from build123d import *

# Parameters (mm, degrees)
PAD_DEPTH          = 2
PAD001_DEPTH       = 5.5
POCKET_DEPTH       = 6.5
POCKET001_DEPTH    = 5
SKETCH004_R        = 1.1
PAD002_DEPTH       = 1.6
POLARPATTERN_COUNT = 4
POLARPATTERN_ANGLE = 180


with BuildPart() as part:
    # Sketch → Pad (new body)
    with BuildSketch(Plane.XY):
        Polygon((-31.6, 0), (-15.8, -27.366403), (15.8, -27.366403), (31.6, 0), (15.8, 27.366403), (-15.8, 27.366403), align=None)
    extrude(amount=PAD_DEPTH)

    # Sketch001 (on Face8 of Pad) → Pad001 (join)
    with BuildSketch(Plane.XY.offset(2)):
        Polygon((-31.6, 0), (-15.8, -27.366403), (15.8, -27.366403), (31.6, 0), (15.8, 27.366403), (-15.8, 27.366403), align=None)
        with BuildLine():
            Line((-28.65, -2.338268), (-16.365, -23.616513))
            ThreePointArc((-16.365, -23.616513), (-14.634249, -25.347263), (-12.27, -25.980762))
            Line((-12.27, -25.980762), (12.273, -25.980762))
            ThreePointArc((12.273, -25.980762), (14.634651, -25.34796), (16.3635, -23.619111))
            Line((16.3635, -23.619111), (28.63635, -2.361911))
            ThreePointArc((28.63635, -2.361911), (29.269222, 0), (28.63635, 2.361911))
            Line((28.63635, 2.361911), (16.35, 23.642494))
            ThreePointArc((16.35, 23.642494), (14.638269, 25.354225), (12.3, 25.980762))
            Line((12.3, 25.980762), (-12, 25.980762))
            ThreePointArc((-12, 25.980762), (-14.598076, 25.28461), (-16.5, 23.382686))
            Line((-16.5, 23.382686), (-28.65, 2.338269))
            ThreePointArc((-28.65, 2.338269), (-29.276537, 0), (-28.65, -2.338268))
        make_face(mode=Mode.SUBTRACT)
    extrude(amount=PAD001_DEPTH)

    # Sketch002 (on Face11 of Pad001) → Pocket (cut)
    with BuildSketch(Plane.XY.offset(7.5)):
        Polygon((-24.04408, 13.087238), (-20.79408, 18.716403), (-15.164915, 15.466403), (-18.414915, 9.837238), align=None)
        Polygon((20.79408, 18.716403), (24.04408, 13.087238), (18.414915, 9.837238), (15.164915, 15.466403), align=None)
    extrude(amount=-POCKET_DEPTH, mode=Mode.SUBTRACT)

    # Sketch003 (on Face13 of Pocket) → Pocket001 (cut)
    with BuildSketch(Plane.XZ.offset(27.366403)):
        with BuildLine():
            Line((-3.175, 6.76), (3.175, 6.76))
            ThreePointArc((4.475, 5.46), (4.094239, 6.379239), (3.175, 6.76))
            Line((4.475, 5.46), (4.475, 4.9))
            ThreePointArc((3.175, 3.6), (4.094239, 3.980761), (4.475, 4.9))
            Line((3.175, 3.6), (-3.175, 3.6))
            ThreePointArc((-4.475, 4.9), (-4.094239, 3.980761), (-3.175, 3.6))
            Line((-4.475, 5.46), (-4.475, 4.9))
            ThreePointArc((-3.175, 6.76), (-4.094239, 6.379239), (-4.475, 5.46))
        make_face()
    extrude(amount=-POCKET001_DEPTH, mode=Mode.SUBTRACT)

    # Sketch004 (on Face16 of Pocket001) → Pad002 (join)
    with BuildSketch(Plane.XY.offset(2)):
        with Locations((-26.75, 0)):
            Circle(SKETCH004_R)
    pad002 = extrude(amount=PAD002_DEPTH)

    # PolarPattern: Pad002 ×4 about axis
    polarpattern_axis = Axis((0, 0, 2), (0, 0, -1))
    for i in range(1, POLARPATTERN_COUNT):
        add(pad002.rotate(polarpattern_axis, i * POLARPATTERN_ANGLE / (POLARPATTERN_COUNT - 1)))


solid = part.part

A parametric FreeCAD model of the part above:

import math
import FreeCAD as App
import Part
import Sketcher
from FreeCAD import Vector
Q = App.Units.Quantity


def add_polygon(sketch, points):
    """Adds a closed chain of lines whose ends are joined by coincident constraints."""
    first, n = sketch.GeometryCount, len(points)
    for a, b in zip(points, points[1:] + points[:1]):
        sketch.addGeometry(Part.LineSegment(App.Vector(*a, 0), App.Vector(*b, 0)), False)
    for i in range(n):
        sketch.addConstraint(Sketcher.Constraint("Coincident", first + i, 2, first + (i + 1) % n, 1))

doc = App.newDocument("Part")
body = doc.addObject("PartDesign::Body", "Body")

# Sketch on XY plane
sketch1 = body.newObject("Sketcher::SketchObject", "Sketch")
sketch1.AttachmentSupport = (doc.getObject("XY_Plane"), [""])
sketch1.MapMode = "FlatFace"
add_polygon(sketch1, [(-32, 0), (-16, -27), (16, -27), (32, 0), (16, 27), (-16, 27)])  # lines 0-5
sketch1.addConstraint(Sketcher.Constraint("Horizontal", 1))
sketch1.addConstraint(Sketcher.Constraint("Horizontal", 4))
sketch1.addConstraint(Sketcher.Constraint("Symmetric", 0, 2, 3, 2, -1, 1))
sketch1.addConstraint(Sketcher.Constraint("Symmetric", 2, 2, 5, 2, -1, 1))
sketch1.addConstraint(Sketcher.Constraint("PointOnObject", 2, 2, -1))
sketch1.addConstraint(Sketcher.Constraint("Parallel", 2, 5))
sketch1.addConstraint(Sketcher.Constraint("Vertical", 1, 2, 3, 2))
sketch1.addConstraint(Sketcher.Constraint("Angle", 0, Q("-60 deg")))
sketch1.addConstraint(Sketcher.Constraint("DistanceX", 1, 1, 1, 2, Q("31.6 mm")))
sketch1.addConstraint(Sketcher.Constraint("Distance", 0, Q("31.6 mm")))
pad1 = body.newObject("PartDesign::Pad", "Pad")
pad1.Profile = sketch1
pad1.Length = 2

# Sketch on XY plane
sketch2 = body.newObject("Sketcher::SketchObject", "Sketch001")
sketch2.AttachmentSupport = (doc.getObject("XY_Plane"), [""])
sketch2.MapMode = "FlatFace"
sketch2.AttachmentOffset = App.Placement(Vector(0, 0, 2), App.Rotation())
add_polygon(sketch2, [(-31.6, 0), (-15.8, -27.4), (15.8, -27.4), (31.6, 0), (15.8, 27.4), (-15.8, 27.4)])  # lines 0-5
sketch2.addGeometry(Part.LineSegment(Vector(-16.4, -23.6, 0), Vector(-28.6, -2.3, 0)), False)  # 6
sketch2.addGeometry(Part.ArcOfCircle(Part.Circle(Vector(-24.6, 0, 0), Vector(0, 0, 1), 4.7), math.radians(150), math.radians(210)), False)  # 7
sketch2.addGeometry(Part.LineSegment(Vector(-28.6, 2.3, 0), Vector(-16.5, 23.4, 0)), False)  # 8
sketch2.addGeometry(Part.ArcOfCircle(Part.Circle(Vector(-12, 20.8, 0), Vector(0, 0, 1), 5.2), math.radians(90), math.radians(150)), False)  # 9
sketch2.addGeometry(Part.LineSegment(Vector(-12, 26, 0), Vector(12.3, 26, 0)), False)  # 10
sketch2.addGeometry(Part.ArcOfCircle(Part.Circle(Vector(12.3, 21.3, 0), Vector(0, 0, 1), 4.7), math.radians(30), math.radians(90)), False)  # 11
sketch2.addGeometry(Part.LineSegment(Vector(16.4, 23.6, 0), Vector(28.6, 2.4, 0)), False)  # 12
sketch2.addGeometry(Part.ArcOfCircle(Part.Circle(Vector(24.5, 0, 0), Vector(0, 0, 1), 4.7), math.radians(-30), math.radians(30)), False)  # 13
sketch2.addGeometry(Part.LineSegment(Vector(28.6, -2.4, 0), Vector(16.4, -23.6, 0)), False)  # 14
sketch2.addGeometry(Part.ArcOfCircle(Part.Circle(Vector(12.3, -21.3, 0), Vector(0, 0, 1), 4.7), math.radians(-90), math.radians(-30)), False)  # 15
sketch2.addGeometry(Part.LineSegment(Vector(12.3, -26, 0), Vector(-12.3, -26, 0)), False)  # 16
sketch2.addGeometry(Part.ArcOfCircle(Part.Circle(Vector(-12.3, -21.3, 0), Vector(0, 0, 1), 4.7), math.radians(-150), math.radians(-90)), False)  # 17
sketch2.addConstraint(Sketcher.Constraint("Tangent", 6, 2, 7, 2))
sketch2.addConstraint(Sketcher.Constraint("Tangent", 7, 1, 8, 1))
sketch2.addConstraint(Sketcher.Constraint("Tangent", 8, 2, 9, 2))
sketch2.addConstraint(Sketcher.Constraint("Tangent", 9, 1, 10, 1))
sketch2.addConstraint(Sketcher.Constraint("Tangent", 10, 2, 11, 2))
sketch2.addConstraint(Sketcher.Constraint("Tangent", 11, 1, 12, 1))
sketch2.addConstraint(Sketcher.Constraint("Tangent", 12, 2, 13, 2))
sketch2.addConstraint(Sketcher.Constraint("Tangent", 13, 1, 14, 1))
sketch2.addConstraint(Sketcher.Constraint("Tangent", 14, 2, 15, 2))
sketch2.addConstraint(Sketcher.Constraint("Tangent", 15, 1, 16, 1))
sketch2.addConstraint(Sketcher.Constraint("Tangent", 16, 2, 17, 2))
sketch2.addConstraint(Sketcher.Constraint("Tangent", 17, 1, 6, 1))
sketch2.addConstraint(Sketcher.Constraint("Horizontal", 1))
sketch2.addConstraint(Sketcher.Constraint("Horizontal", 4))
sketch2.addConstraint(Sketcher.Constraint("Horizontal", 10))
sketch2.addConstraint(Sketcher.Constraint("Horizontal", 16))
sketch2.addConstraint(Sketcher.Constraint("Symmetric", 0, 2, 3, 2, -1, 1))
sketch2.addConstraint(Sketcher.Constraint("Symmetric", 2, 2, 5, 2, -1, 1))
sketch2.addConstraint(Sketcher.Constraint("Symmetric", 6, 2, 7, 1, -1))
sketch2.addConstraint(Sketcher.Constraint("Symmetric", 12, 2, 13, 1, -1))
sketch2.addConstraint(Sketcher.Constraint("PointOnObject", 2, 2, -1))
sketch2.addConstraint(Sketcher.Constraint("Parallel", 2, 5))
sketch2.addConstraint(Sketcher.Constraint("Parallel", 3, 6))
sketch2.addConstraint(Sketcher.Constraint("Parallel", 5, 8))
sketch2.addConstraint(Sketcher.Constraint("Parallel", 6, 12))
sketch2.addConstraint(Sketcher.Constraint("Angle", 0, Q("-60 deg")))
sketch2.addConstraint(Sketcher.Constraint("DistanceX", 1, 1, 1, 2, Q("31.6 mm")))
sketch2.addConstraint(Sketcher.Constraint("DistanceX", 10, 1, 10, 2, Q("24.3 mm")))
sketch2.addConstraint(Sketcher.Constraint("DistanceX", 9, 3, -1, 1, Q("12.000001 mm")))
sketch2.addConstraint(Sketcher.Constraint("DistanceX", 5, 2, 7, 3, Q("7.000001 mm")))
sketch2.addConstraint(Sketcher.Constraint("Distance", 0, Q("31.6 mm")))
sketch2.addConstraint(Sketcher.Constraint("Distance", 8, Q("24.3 mm")))
sketch2.addConstraint(Sketcher.Constraint("DistanceX", 8, 2, -1, 1, Q("16.5 mm")))
sketch2.addConstraint(Sketcher.Constraint("Radius", 15, Q("4.723301 mm")))
sketch2.addConstraint(Sketcher.Constraint("Distance", 6, Q("24.570001 mm")))
sketch2.addConstraint(Sketcher.Constraint("DistanceX", 16, 2, 16, 1, Q("24.543 mm")))
sketch2.addConstraint(Sketcher.Constraint("DistanceX", 17, 3, -1, 1, Q("12.269998 mm")))
sketch2.addConstraint(Sketcher.Constraint("Radius", 13, Q("4.723823 mm")))
pad2 = body.newObject("PartDesign::Pad", "Pad001")
pad2.Profile = sketch2
pad2.Length = 5.5

# Sketch on XY plane
sketch3 = body.newObject("Sketcher::SketchObject", "Sketch002")
sketch3.AttachmentSupport = (doc.getObject("XY_Plane"), [""])
sketch3.MapMode = "FlatFace"
sketch3.AttachmentOffset = App.Placement(Vector(0, 0, 7.5), App.Rotation())
add_polygon(sketch3, [(-21, 19), (-24, 13), (-18, 10), (-15, 15)])  # lines 0-3
add_polygon(sketch3, [(24, 13), (21, 19), (15, 15), (18, 10)])  # lines 4-7
sketch3.addConstraint(Sketcher.Constraint("Symmetric", 3, 2, 4, 2, -2))
sketch3.addConstraint(Sketcher.Constraint("Symmetric", 2, 2, 5, 2, -2))
sketch3.addConstraint(Sketcher.Constraint("Symmetric", 1, 2, 6, 2, -2))
sketch3.addConstraint(Sketcher.Constraint("Symmetric", 0, 2, 7, 2, -2))
sketch3.addConstraint(Sketcher.Constraint("Perpendicular", 0, 1))
sketch3.addConstraint(Sketcher.Constraint("Perpendicular", 1, 2))
sketch3.addConstraint(Sketcher.Constraint("Perpendicular", 2, 3))
sketch3.addConstraint(Sketcher.Constraint("Equal", 0, 1))
sketch3.addConstraint(Sketcher.Constraint("Angle", 0, Q("-120.000001 deg")))
sketch3.addConstraint(Sketcher.Constraint("Distance", 0, Q("6.5 mm")))
sketch3.addConstraint(Sketcher.Constraint("DistanceX", 0, 2, -1, 1, Q("24.04408 mm")))
sketch3.addConstraint(Sketcher.Constraint("DistanceY", -1, 1, 0, 2, Q("13.087238 mm")))
pocket1 = body.newObject("PartDesign::Pocket", "Pocket")
pocket1.Profile = sketch3
pocket1.Length = 6.5

# Sketch on XZ plane
sketch4 = body.newObject("Sketcher::SketchObject", "Sketch003")
sketch4.AttachmentSupport = (doc.getObject("XZ_Plane"), [""])
sketch4.MapMode = "FlatFace"
sketch4.AttachmentOffset = App.Placement(Vector(0, 0, 27.366403), App.Rotation())
sketch4.addGeometry(Part.LineSegment(Vector(3.2, 6.8, 0), Vector(-3.2, 6.8, 0)), False)
sketch4.addGeometry(Part.ArcOfCircle(Part.Circle(Vector(-3.2, 5.5, 0), Vector(0, 0, 1), 1.3), math.radians(90), math.radians(180)), False)
sketch4.addGeometry(Part.LineSegment(Vector(-4.5, 5.5, 0), Vector(-4.5, 4.9, 0)), False)
sketch4.addGeometry(Part.ArcOfCircle(Part.Circle(Vector(-3.2, 4.9, 0), Vector(0, 0, 1), 1.3), math.radians(180), math.radians(270)), False)
sketch4.addGeometry(Part.LineSegment(Vector(-3.2, 3.6, 0), Vector(3.2, 3.6, 0)), False)
sketch4.addGeometry(Part.ArcOfCircle(Part.Circle(Vector(3.2, 4.9, 0), Vector(0, 0, 1), 1.3), math.radians(-90), math.radians(0)), False)
sketch4.addGeometry(Part.LineSegment(Vector(4.5, 4.9, 0), Vector(4.5, 5.5, 0)), False)
sketch4.addGeometry(Part.ArcOfCircle(Part.Circle(Vector(3.2, 5.5, 0), Vector(0, 0, 1), 1.3), math.radians(0), math.radians(90)), False)
sketch4.addConstraint(Sketcher.Constraint("Tangent", 0, 2, 1, 1))
sketch4.addConstraint(Sketcher.Constraint("Tangent", 1, 2, 2, 1))
sketch4.addConstraint(Sketcher.Constraint("Tangent", 2, 2, 3, 1))
sketch4.addConstraint(Sketcher.Constraint("Tangent", 3, 2, 4, 1))
sketch4.addConstraint(Sketcher.Constraint("Tangent", 4, 2, 5, 1))
sketch4.addConstraint(Sketcher.Constraint("Tangent", 5, 2, 6, 1))
sketch4.addConstraint(Sketcher.Constraint("Tangent", 6, 2, 7, 1))
sketch4.addConstraint(Sketcher.Constraint("Tangent", 7, 2, 0, 1))
sketch4.addConstraint(Sketcher.Constraint("Horizontal", 0))
sketch4.addConstraint(Sketcher.Constraint("Vertical", 2))
sketch4.addConstraint(Sketcher.Constraint("Horizontal", 4))
sketch4.addConstraint(Sketcher.Constraint("Vertical", 6))
sketch4.addConstraint(Sketcher.Constraint("Equal", 1, 3))
sketch4.addConstraint(Sketcher.Constraint("Equal", 3, 5))
sketch4.addConstraint(Sketcher.Constraint("Equal", 5, 7))
sketch4.addConstraint(Sketcher.Constraint("Radius", 1, Q("1.299999 mm")))
sketch4.addConstraint(Sketcher.Constraint("DistanceX", 0, 2, 0, 1, Q("6.35 mm")))
sketch4.addConstraint(Sketcher.Constraint("DistanceY", 2, 2, 2, 1, Q("0.56 mm")))
sketch4.addConstraint(Sketcher.Constraint("DistanceY", -1, 1, 3, 3, Q("4.899999 mm")))
sketch4.addConstraint(Sketcher.Constraint("DistanceX", 1, 3, -1, 1, Q("3.175001 mm")))
pocket2 = body.newObject("PartDesign::Pocket", "Pocket001")
pocket2.Profile = sketch4
pocket2.Length = 5

# Sketch on XY plane
sketch5 = body.newObject("Sketcher::SketchObject", "Sketch004")
sketch5.AttachmentSupport = (doc.getObject("XY_Plane"), [""])
sketch5.MapMode = "FlatFace"
sketch5.AttachmentOffset = App.Placement(Vector(0, 0, 2), App.Rotation())
sketch5.addGeometry(Part.Circle(Vector(-26.8, 0, 0), Vector(0, 0, 1), 1.1), False)
sketch5.addConstraint(Sketcher.Constraint("PointOnObject", 0, 3, -1))
sketch5.addConstraint(Sketcher.Constraint("Diameter", 0, Q("2.2 mm")))
sketch5.addConstraint(Sketcher.Constraint("DistanceX", 0, 3, -1, 1, Q("26.75 mm")))
pad3 = body.newObject("PartDesign::Pad", "Pad002")
pad3.Profile = sketch5
pad3.Length = 1.6
doc.recompute()

polarpattern = body.newObject("PartDesign::PolarPattern", "PolarPattern")
polarpattern.Originals = [pad3]
polarpattern.Axis = (doc.getObject("Z_Axis"), [""])
polarpattern.Angle = 180
polarpattern.Occurrences = 4
polarpattern.Reversed = True
body.Tip = polarpattern

doc.recompute()
